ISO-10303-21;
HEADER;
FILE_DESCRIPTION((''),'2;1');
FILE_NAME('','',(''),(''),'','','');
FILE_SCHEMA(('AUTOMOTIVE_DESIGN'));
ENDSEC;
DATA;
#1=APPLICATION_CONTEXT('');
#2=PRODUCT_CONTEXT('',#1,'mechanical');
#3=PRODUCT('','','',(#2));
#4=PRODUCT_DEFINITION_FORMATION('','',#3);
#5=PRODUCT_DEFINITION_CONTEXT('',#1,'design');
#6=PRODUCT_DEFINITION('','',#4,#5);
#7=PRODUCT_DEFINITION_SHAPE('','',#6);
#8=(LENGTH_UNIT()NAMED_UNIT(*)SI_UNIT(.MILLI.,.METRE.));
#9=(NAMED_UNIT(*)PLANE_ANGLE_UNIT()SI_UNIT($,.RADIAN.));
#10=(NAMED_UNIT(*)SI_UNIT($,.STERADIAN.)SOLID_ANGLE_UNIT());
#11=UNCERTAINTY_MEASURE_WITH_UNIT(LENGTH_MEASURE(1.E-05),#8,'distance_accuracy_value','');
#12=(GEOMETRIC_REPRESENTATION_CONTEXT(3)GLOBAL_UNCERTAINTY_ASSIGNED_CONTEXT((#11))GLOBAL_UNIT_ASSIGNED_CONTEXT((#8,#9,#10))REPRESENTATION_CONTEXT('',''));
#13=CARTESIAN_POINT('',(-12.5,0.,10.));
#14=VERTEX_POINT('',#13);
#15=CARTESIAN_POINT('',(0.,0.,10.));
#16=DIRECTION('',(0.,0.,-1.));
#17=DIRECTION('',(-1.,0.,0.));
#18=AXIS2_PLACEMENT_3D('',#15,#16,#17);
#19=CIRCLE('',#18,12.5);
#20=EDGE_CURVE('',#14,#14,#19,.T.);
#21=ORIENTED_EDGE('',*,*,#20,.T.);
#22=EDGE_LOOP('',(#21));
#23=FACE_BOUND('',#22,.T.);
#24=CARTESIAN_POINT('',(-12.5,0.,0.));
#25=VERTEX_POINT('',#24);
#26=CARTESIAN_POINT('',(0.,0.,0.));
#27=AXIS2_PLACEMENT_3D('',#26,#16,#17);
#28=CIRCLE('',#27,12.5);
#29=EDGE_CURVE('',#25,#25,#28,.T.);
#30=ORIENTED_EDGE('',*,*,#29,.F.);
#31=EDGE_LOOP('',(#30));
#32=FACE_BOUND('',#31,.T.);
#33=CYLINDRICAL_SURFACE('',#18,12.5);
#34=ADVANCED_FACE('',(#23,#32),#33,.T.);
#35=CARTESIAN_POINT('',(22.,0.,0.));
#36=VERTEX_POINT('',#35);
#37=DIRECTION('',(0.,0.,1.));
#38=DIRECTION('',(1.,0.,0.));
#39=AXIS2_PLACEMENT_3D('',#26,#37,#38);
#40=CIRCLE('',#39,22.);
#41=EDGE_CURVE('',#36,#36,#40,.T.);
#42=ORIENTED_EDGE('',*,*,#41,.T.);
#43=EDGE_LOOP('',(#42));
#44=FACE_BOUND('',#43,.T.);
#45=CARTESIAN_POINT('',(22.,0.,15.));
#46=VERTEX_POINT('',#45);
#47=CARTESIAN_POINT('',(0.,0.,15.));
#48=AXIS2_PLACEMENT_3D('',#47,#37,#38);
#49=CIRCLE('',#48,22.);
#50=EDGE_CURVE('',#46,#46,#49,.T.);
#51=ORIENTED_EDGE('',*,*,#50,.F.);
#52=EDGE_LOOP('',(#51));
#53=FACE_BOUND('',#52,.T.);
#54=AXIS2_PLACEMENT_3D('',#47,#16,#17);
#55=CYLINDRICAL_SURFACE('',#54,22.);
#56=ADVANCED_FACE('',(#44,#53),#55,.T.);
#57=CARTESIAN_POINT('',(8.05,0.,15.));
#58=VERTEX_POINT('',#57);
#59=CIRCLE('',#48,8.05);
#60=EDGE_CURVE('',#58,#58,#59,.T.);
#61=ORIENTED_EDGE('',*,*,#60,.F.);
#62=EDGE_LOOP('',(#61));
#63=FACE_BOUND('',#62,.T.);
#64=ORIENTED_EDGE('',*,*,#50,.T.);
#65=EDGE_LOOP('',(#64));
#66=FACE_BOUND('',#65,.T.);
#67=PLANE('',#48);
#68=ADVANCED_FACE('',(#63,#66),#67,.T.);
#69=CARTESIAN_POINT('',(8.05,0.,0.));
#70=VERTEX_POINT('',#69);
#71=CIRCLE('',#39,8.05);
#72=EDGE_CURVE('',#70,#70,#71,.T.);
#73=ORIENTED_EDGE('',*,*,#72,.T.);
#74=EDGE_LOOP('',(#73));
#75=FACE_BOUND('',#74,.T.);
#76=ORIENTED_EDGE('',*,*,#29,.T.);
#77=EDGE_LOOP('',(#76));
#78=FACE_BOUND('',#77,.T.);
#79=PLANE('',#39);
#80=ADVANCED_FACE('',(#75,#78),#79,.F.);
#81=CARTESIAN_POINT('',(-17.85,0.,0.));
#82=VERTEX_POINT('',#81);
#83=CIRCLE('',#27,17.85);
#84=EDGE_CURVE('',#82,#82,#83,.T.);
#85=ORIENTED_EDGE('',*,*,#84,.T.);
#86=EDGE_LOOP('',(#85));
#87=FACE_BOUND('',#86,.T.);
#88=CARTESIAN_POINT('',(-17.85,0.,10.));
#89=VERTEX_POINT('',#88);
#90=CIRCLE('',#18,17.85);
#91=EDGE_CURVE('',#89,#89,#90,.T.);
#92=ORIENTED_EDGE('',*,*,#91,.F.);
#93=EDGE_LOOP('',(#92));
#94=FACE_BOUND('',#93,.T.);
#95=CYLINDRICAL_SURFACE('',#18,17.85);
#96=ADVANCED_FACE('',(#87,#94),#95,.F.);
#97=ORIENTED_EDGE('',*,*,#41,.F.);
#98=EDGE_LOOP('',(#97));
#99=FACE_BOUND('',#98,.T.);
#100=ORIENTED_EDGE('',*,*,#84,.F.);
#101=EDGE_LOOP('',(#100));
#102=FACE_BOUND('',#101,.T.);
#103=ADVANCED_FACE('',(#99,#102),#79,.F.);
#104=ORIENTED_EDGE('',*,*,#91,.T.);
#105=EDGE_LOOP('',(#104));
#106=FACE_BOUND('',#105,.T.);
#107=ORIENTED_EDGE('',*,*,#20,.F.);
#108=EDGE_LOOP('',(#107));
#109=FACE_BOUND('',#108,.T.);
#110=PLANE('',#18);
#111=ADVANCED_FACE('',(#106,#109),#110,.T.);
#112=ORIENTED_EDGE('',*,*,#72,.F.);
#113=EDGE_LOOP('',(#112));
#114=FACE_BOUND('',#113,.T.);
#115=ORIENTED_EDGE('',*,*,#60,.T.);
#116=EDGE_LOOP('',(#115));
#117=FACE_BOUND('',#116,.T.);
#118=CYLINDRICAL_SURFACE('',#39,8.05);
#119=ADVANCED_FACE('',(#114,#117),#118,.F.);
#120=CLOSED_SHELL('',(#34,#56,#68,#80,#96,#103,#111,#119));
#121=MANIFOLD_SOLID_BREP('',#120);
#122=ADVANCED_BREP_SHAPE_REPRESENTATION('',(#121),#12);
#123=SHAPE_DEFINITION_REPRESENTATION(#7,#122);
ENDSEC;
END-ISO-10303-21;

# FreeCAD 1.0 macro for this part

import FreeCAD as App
import Part
import Sketcher
from FreeCAD import Vector
Q = App.Units.Quantity

doc = App.newDocument("Part")
params = doc.addObject("Spreadsheet::Sheet", "Params")
for row, (alias, value) in enumerate([
    ("sketch1_diameter", "44 mm"),
    ("pad1_length", "15 mm"),
    ("sketch2_diameter", "25 mm"),
    ("sketch2_diameter2", "35.7 mm"),
    ("pocket1_length", "10 mm"),
    ("sketch3_diameter", "16.1 mm"),
], start=1):
    params.set(f"A{row}", alias)
    params.set(f"B{row}", "=" + value)
    params.setAlias(f"B{row}", alias)

body = doc.addObject("PartDesign::Body", "Body")

sketch1 = body.newObject("Sketcher::SketchObject", "Sketch")
sketch1.AttachmentSupport = (doc.getObject("XY_Plane"), [""])
sketch1.MapMode = "FlatFace"
sketch1.addGeometry(Part.Circle(Vector(0, 0, 0), Vector(0, 0, 1), 22), False)
sketch1.addConstraint([
    Sketcher.Constraint("Coincident", 0, 3, -1, 1),
    Sketcher.Constraint("Diameter", 0, Q("44 mm")),
])
sketch1.setExpression("Constraints[1]", "Params.sketch1_diameter")
pad1 = body.newObject("PartDesign::Pad", "Pad")
pad1.Profile = sketch1
pad1.setExpression("Length", "Params.pad1_length")

sketch2 = body.newObject("Sketcher::SketchObject", "Sketch001")
sketch2.AttachmentSupport = (doc.getObject("XY_Plane"), [""])
sketch2.MapMode = "FlatFace"
sketch2.addGeometry([
    Part.Circle(Vector(0, 0, 0), Vector(0, 0, 1), 18),
    Part.Circle(Vector(0, 0, 0), Vector(0, 0, 1), 12),
], False)
sketch2.addConstraint([
    Sketcher.Constraint("Coincident", 0, 3, -1, 1),
    Sketcher.Constraint("Coincident", 1, 3, -1, 1),
    Sketcher.Constraint("Diameter", 1, Q("25 mm")),
    Sketcher.Constraint("Diameter", 0, Q("35.7 mm")),
])
sketch2.setExpression("Constraints[2]", "Params.sketch2_diameter")
sketch2.setExpression("Constraints[3]", "Params.sketch2_diameter2")
pocket1 = body.newObject("PartDesign::Pocket", "Pocket")
pocket1.Profile = sketch2
pocket1.setExpression("Length", "Params.pocket1_length")
pocket1.Reversed = True

sketch3 = body.newObject("Sketcher::SketchObject", "Sketch002")
sketch3.AttachmentSupport = (doc.getObject("XY_Plane"), [""])
sketch3.MapMode = "FlatFace"
sketch3.AttachmentOffset = App.Placement(Vector(0, 0, 15), App.Rotation())
sketch3.addGeometry(Part.Circle(Vector(0, 0, 0), Vector(0, 0, 1), 8), False)
sketch3.addConstraint([
    Sketcher.Constraint("Coincident", 0, 3, -1, 1),
    Sketcher.Constraint("Diameter", 0, Q("16.1 mm")),
])
sketch3.setExpression("Constraints[1]", "Params.sketch3_diameter")
pocket2 = body.newObject("PartDesign::Pocket", "Pocket001")
pocket2.Profile = sketch3
pocket2.Type = "ThroughAll"

doc.recompute()
